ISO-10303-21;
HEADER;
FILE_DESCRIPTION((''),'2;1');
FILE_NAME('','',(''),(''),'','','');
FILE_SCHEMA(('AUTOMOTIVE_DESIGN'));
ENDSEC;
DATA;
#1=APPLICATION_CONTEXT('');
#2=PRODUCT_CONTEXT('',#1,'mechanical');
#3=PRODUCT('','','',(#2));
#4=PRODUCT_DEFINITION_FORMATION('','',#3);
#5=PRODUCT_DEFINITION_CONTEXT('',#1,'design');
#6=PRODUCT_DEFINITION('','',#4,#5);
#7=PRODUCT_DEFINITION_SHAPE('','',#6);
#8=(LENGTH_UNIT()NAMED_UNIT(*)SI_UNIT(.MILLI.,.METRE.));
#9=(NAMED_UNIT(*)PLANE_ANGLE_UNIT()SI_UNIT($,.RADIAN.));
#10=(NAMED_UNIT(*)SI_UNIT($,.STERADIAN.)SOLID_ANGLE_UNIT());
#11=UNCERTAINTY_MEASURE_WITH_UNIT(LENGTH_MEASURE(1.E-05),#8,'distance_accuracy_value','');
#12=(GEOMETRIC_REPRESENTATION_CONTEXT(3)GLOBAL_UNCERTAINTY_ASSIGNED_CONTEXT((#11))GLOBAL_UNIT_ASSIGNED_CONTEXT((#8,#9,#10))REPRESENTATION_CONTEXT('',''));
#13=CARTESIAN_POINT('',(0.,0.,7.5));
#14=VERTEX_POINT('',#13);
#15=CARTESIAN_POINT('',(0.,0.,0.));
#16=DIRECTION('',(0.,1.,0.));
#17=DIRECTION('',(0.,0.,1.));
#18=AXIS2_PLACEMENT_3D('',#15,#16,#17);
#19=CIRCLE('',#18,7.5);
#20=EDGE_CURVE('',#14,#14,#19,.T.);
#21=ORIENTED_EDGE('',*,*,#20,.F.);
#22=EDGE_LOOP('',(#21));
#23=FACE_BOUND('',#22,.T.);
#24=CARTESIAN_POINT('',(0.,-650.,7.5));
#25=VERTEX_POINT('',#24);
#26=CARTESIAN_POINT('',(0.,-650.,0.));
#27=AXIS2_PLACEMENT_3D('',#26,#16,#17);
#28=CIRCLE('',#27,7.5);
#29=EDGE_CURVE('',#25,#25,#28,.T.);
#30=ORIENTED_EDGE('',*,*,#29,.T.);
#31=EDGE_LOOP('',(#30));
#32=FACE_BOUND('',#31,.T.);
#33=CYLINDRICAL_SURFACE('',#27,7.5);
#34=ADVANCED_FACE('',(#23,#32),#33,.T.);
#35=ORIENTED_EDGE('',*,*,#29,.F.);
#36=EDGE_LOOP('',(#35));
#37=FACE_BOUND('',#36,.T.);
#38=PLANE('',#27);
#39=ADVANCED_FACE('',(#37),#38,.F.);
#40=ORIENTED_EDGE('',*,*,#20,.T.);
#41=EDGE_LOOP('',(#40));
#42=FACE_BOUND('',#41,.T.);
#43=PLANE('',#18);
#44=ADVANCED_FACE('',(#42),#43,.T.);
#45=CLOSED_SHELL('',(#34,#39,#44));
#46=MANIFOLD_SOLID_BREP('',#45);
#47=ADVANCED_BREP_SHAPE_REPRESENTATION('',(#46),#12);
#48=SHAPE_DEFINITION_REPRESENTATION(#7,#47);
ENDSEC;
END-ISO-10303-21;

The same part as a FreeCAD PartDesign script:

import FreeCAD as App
import Part
import Sketcher
Q = App.Units.Quantity

doc = App.newDocument("Part")
params = doc.addObject("Spreadsheet::Sheet", "Params")
for row, (alias, value) in enumerate([
    ("sketch1_diameter", "15 mm"),
    ("pad1_length", "650 mm"),
], start=1):
    params.set(f"A{row}", alias)
    params.set(f"B{row}", "=" + value)
    params.setAlias(f"B{row}", alias)

body = doc.addObject("PartDesign::Body", "Body")

# Sketch on XZ plane
sketch1 = doc.addObject("Sketcher::SketchObject", "Sketch")
body.addObject(sketch1)
sketch1.AttachmentSupport = (doc.XZ_Plane, [""])
sketch1.MapMode = "FlatFace"
sketch1.addGeometry(Part.Circle(App.Vector(0, 0, 0), App.Vector(0, 0, 1), 8), False)
sketch1.addConstraint(Sketcher.Constraint("Coincident", 0, 3, -1, 1))
sketch1.addConstraint(Sketcher.Constraint("Diameter", 0, Q("15 mm")))
sketch1.setExpression("Constraints[1]", "Params.sketch1_diameter")
pad1 = doc.addObject("PartDesign::Pad", "Pad")
body.addObject(pad1)
pad1.Profile = sketch1
pad1.setExpression("Length", "Params.pad1_length")

doc.recompute()
